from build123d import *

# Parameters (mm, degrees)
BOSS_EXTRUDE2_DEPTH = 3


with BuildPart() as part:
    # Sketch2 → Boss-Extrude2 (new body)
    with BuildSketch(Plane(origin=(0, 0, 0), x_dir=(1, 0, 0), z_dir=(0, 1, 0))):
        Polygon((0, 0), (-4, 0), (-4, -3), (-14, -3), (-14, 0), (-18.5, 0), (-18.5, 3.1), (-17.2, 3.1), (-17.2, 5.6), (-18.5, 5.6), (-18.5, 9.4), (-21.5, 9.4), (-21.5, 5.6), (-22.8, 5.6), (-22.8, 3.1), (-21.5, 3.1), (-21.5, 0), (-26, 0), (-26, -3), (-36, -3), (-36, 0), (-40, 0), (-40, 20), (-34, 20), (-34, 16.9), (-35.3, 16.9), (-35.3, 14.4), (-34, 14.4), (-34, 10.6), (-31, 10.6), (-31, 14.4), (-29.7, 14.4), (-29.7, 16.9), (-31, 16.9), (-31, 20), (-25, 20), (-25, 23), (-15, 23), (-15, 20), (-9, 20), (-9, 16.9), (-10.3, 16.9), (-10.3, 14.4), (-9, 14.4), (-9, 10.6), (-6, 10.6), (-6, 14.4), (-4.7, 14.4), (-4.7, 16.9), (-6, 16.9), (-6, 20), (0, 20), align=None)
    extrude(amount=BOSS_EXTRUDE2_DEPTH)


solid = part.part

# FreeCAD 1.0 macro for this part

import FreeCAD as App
import Part
import Sketcher
from FreeCAD import Vector
Q = App.Units.Quantity

doc = App.newDocument("Part")
body = doc.addObject("PartDesign::Body", "Body")

# Sketch on XZ plane
sketch1 = body.newObject("Sketcher::SketchObject", "Sketch")
sketch1.AttachmentSupport = (doc.getObject("XZ_Plane"), [""])
sketch1.MapMode = "FlatFace"
sketch1.addGeometry([
    Part.LineSegment(Vector(-4, 0, 0), Vector(0, 0, 0)),  # 0
    Part.LineSegment(Vector(0, 0, 0), Vector(0, -20, 0)),  # 1
    Part.LineSegment(Vector(0, -20, 0), Vector(-6, -20, 0)),  # 2
    Part.LineSegment(Vector(-6, -20, 0), Vector(-6, -16.9, 0)),  # 3
    Part.LineSegment(Vector(-6, -16.9, 0), Vector(-4.7, -16.9, 0)),  # 4
    Part.LineSegment(Vector(-4.7, -16.9, 0), Vector(-4.7, -14.4, 0)),  # 5
    Part.LineSegment(Vector(-4.7, -14.4, 0), Vector(-6, -14.4, 0)),  # 6
    Part.LineSegment(Vector(-6, -14.4, 0), Vector(-6, -10.6, 0)),  # 7
    Part.LineSegment(Vector(-6, -10.6, 0), Vector(-9, -10.6, 0)),  # 8
    Part.LineSegment(Vector(-9, -10.6, 0), Vector(-9, -14.4, 0)),  # 9
    Part.LineSegment(Vector(-9, -14.4, 0), Vector(-10.3, -14.4, 0)),  # 10
    Part.LineSegment(Vector(-10.3, -14.4, 0), Vector(-10.3, -16.9, 0)),  # 11
    Part.LineSegment(Vector(-10.3, -16.9, 0), Vector(-9, -16.9, 0)),  # 12
    Part.LineSegment(Vector(-9, -16.9, 0), Vector(-9, -20, 0)),  # 13
    Part.LineSegment(Vector(-9, -20, 0), Vector(-15, -20, 0)),  # 14
    Part.LineSegment(Vector(-15, -20, 0), Vector(-15, -23, 0)),  # 15
    Part.LineSegment(Vector(-15, -23, 0), Vector(-25, -23, 0)),  # 16
    Part.LineSegment(Vector(-25, -23, 0), Vector(-25, -20, 0)),  # 17
    Part.LineSegment(Vector(-25, -20, 0), Vector(-31, -20, 0)),  # 18
    Part.LineSegment(Vector(-31, -20, 0), Vector(-31, -16.9, 0)),  # 19
    Part.LineSegment(Vector(-31, -16.9, 0), Vector(-29.7, -16.9, 0)),  # 20
    Part.LineSegment(Vector(-29.7, -16.9, 0), Vector(-29.7, -14.4, 0)),  # 21
    Part.LineSegment(Vector(-29.7, -14.4, 0), Vector(-31, -14.4, 0)),  # 22
    Part.LineSegment(Vector(-31, -14.4, 0), Vector(-31, -10.6, 0)),  # 23
    Part.LineSegment(Vector(-31, -10.6, 0), Vector(-34, -10.6, 0)),  # 24
    Part.LineSegment(Vector(-34, -10.6, 0), Vector(-34, -14.4, 0)),  # 25
    Part.LineSegment(Vector(-34, -14.4, 0), Vector(-35.3, -14.4, 0)),  # 26
    Part.LineSegment(Vector(-35.3, -14.4, 0), Vector(-35.3, -16.9, 0)),  # 27
    Part.LineSegment(Vector(-35.3, -16.9, 0), Vector(-34, -16.9, 0)),  # 28
    Part.LineSegment(Vector(-34, -16.9, 0), Vector(-34, -20, 0)),  # 29
    Part.LineSegment(Vector(-34, -20, 0), Vector(-40, -20, 0)),  # 30
    Part.LineSegment(Vector(-40, -20, 0), Vector(-40, 0, 0)),  # 31
    Part.LineSegment(Vector(-40, 0, 0), Vector(-36, 0, 0)),  # 32
    Part.LineSegment(Vector(-36, 0, 0), Vector(-36, 3, 0)),  # 33
    Part.LineSegment(Vector(-36, 3, 0), Vector(-26, 3, 0)),  # 34
    Part.LineSegment(Vector(-26, 3, 0), Vector(-26, 0, 0)),  # 35
    Part.LineSegment(Vector(-26, 0, 0), Vector(-21.5, 0, 0)),  # 36
    Part.LineSegment(Vector(-21.5, 0, 0), Vector(-21.5, -3.1, 0)),  # 37
    Part.LineSegment(Vector(-21.5, -3.1, 0), Vector(-22.8, -3.1, 0)),  # 38
    Part.LineSegment(Vector(-22.8, -3.1, 0), Vector(-22.8, -5.6, 0)),  # 39
    Part.LineSegment(Vector(-22.8, -5.6, 0), Vector(-21.5, -5.6, 0)),  # 40
    Part.LineSegment(Vector(-21.5, -5.6, 0), Vector(-21.5, -9.4, 0)),  # 41
    Part.LineSegment(Vector(-21.5, -9.4, 0), Vector(-18.5, -9.4, 0)),  # 42
    Part.LineSegment(Vector(-18.5, -9.4, 0), Vector(-18.5, -5.6, 0)),  # 43
    Part.LineSegment(Vector(-18.5, -5.6, 0), Vector(-17.2, -5.6, 0)),  # 44
    Part.LineSegment(Vector(-17.2, -5.6, 0), Vector(-17.2, -3.1, 0)),  # 45
    Part.LineSegment(Vector(-17.2, -3.1, 0), Vector(-18.5, -3.1, 0)),  # 46
    Part.LineSegment(Vector(-18.5, -3.1, 0), Vector(-18.5, 0, 0)),  # 47
    Part.LineSegment(Vector(-18.5, 0, 0), Vector(-14, 0, 0)),  # 48
    Part.LineSegment(Vector(-14, 0, 0), Vector(-14, 3, 0)),  # 49
    Part.LineSegment(Vector(-14, 3, 0), Vector(-4, 3, 0)),  # 50
    Part.LineSegment(Vector(-4, 3, 0), Vector(-4, 0, 0)),  # 51
], False)
sketch1.addConstraint([
    Sketcher.Constraint("Coincident", 0, 2, 1, 1),
    Sketcher.Constraint("Coincident", 1, 2, 2, 1),
    Sketcher.Constraint("Coincident", 2, 2, 3, 1),
    Sketcher.Constraint("Coincident", 3, 2, 4, 1),
    Sketcher.Constraint("Coincident", 4, 2, 5, 1),
    Sketcher.Constraint("Coincident", 5, 2, 6, 1),
    Sketcher.Constraint("Coincident", 6, 2, 7, 1),
    Sketcher.Constraint("Coincident", 7, 2, 8, 1),
    Sketcher.Constraint("Coincident", 8, 2, 9, 1),
    Sketcher.Constraint("Coincident", 9, 2, 10, 1),
    Sketcher.Constraint("Coincident", 10, 2, 11, 1),
    Sketcher.Constraint("Coincident", 11, 2, 12, 1),
    Sketcher.Constraint("Coincident", 12, 2, 13, 1),
    Sketcher.Constraint("Coincident", 13, 2, 14, 1),
    Sketcher.Constraint("Coincident", 14, 2, 15, 1),
    Sketcher.Constraint("Coincident", 15, 2, 16, 1),
    Sketcher.Constraint("Coincident", 16, 2, 17, 1),
    Sketcher.Constraint("Coincident", 17, 2, 18, 1),
    Sketcher.Constraint("Coincident", 18, 2, 19, 1),
    Sketcher.Constraint("Coincident", 19, 2, 20, 1),
    Sketcher.Constraint("Coincident", 20, 2, 21, 1),
    Sketcher.Constraint("Coincident", 21, 2, 22, 1),
    Sketcher.Constraint("Coincident", 22, 2, 23, 1),
    Sketcher.Constraint("Coincident", 23, 2, 24, 1),
    Sketcher.Constraint("Coincident", 24, 2, 25, 1),
    Sketcher.Constraint("Coincident", 25, 2, 26, 1),
    Sketcher.Constraint("Coincident", 26, 2, 27, 1),
    Sketcher.Constraint("Coincident", 27, 2, 28, 1),
    Sketcher.Constraint("Coincident", 28, 2, 29, 1),
    Sketcher.Constraint("Coincident", 29, 2, 30, 1),
    Sketcher.Constraint("Coincident", 30, 2, 31, 1),
    Sketcher.Constraint("Coincident", 31, 2, 32, 1),
    Sketcher.Constraint("Coincident", 32, 2, 33, 1),
    Sketcher.Constraint("Coincident", 33, 2, 34, 1),
    Sketcher.Constraint("Coincident", 34, 2, 35, 1),
    Sketcher.Constraint("Coincident", 35, 2, 36, 1),
    Sketcher.Constraint("Coincident", 36, 2, 37, 1),
    Sketcher.Constraint("Coincident", 37, 2, 38, 1),
    Sketcher.Constraint("Coincident", 38, 2, 39, 1),
    Sketcher.Constraint("Coincident", 39, 2, 40, 1),
    Sketcher.Constraint("Coincident", 40, 2, 41, 1),
    Sketcher.Constraint("Coincident", 41, 2, 42, 1),
    Sketcher.Constraint("Coincident", 42, 2, 43, 1),
    Sketcher.Constraint("Coincident", 43, 2, 44, 1),
    Sketcher.Constraint("Coincident", 44, 2, 45, 1),
    Sketcher.Constraint("Coincident", 45, 2, 46, 1),
    Sketcher.Constraint("Coincident", 46, 2, 47, 1),
    Sketcher.Constraint("Coincident", 47, 2, 48, 1),
    Sketcher.Constraint("Coincident", 48, 2, 49, 1),
    Sketcher.Constraint("Coincident", 49, 2, 50, 1),
    Sketcher.Constraint("Coincident", 50, 2, 51, 1),
    Sketcher.Constraint("Coincident", 51, 2, 0, 1),
    Sketcher.Constraint("Horizontal", 0),
    Sketcher.Constraint("Vertical", 1),
    Sketcher.Constraint("Horizontal", 2),
    Sketcher.Constraint("Vertical", 3),
    Sketcher.Constraint("Horizontal", 4),
    Sketcher.Constraint("Vertical", 5),
    Sketcher.Constraint("Horizontal", 6),
    Sketcher.Constraint("Vertical", 7),
    Sketcher.Constraint("Horizontal", 8),
    Sketcher.Constraint("Vertical", 9),
    Sketcher.Constraint("Horizontal", 10),
    Sketcher.Constraint("Vertical", 11),
    Sketcher.Constraint("Horizontal", 12),
    Sketcher.Constraint("Vertical", 13),
    Sketcher.Constraint("Horizontal", 14),
    Sketcher.Constraint("Vertical", 15),
    Sketcher.Constraint("Horizontal", 16),
    Sketcher.Constraint("Vertical", 17),
    Sketcher.Constraint("Horizontal", 18),
    Sketcher.Constraint("Vertical", 19),
    Sketcher.Constraint("Horizontal", 20),
    Sketcher.Constraint("Vertical", 21),
    Sketcher.Constraint("Horizontal", 22),
    Sketcher.Constraint("Vertical", 23),
    Sketcher.Constraint("Horizontal", 24),
    Sketcher.Constraint("Vertical", 25),
    Sketcher.Constraint("Horizontal", 26),
    Sketcher.Constraint("Vertical", 27),
    Sketcher.Constraint("Horizontal", 28),
    Sketcher.Constraint("Vertical", 29),
    Sketcher.Constraint("Horizontal", 30),
    Sketcher.Constraint("Vertical", 31),
    Sketcher.Constraint("Horizontal", 32),
    Sketcher.Constraint("Vertical", 33),
    Sketcher.Constraint("Horizontal", 34),
    Sketcher.Constraint("Vertical", 35),
    Sketcher.Constraint("Horizontal", 36),
    Sketcher.Constraint("Vertical", 37),
    Sketcher.Constraint("Horizontal", 38),
    Sketcher.Constraint("Vertical", 39),
    Sketcher.Constraint("Horizontal", 40),
    Sketcher.Constraint("Vertical", 41),
    Sketcher.Constraint("Horizontal", 42),
    Sketcher.Constraint("Vertical", 43),
    Sketcher.Constraint("Horizontal", 44),
    Sketcher.Constraint("Vertical", 45),
    Sketcher.Constraint("Horizontal", 46),
    Sketcher.Constraint("Vertical", 47),
    Sketcher.Constraint("Horizontal", 48),
    Sketcher.Constraint("Vertical", 49),
    Sketcher.Constraint("Horizontal", 50),
    Sketcher.Constraint("Vertical", 51),
    Sketcher.Constraint("Coincident", 0, 2, -1, 1),
    Sketcher.Constraint("PointOnObject", 31, 2, -1),
    Sketcher.Constraint("PointOnObject", 35, 2, -1),
    Sketcher.Constraint("PointOnObject", 47, 2, -1),
    Sketcher.Constraint("Horizontal", 6, 2, 9, 2),
    Sketcher.Constraint("Horizontal", 4, 2, 11, 2),
    Sketcher.Constraint("Horizontal", 2, 2, 13, 2),
    Sketcher.Constraint("Horizontal", 14, 2, 17, 2),
    Sketcher.Constraint("Horizontal", 12, 2, 19, 2),
    Sketcher.Constraint("Horizontal", 10, 2, 21, 2),
    Sketcher.Constraint("Horizontal", 8, 2, 23, 2),
    Sketcher.Constraint("Horizontal", 22, 2, 25, 2),
    Sketcher.Constraint("Horizontal", 20, 2, 27, 2),
    Sketcher.Constraint("Horizontal", 18, 2, 29, 2),
    Sketcher.Constraint("Horizontal", 40, 2, 43, 2),
    Sketcher.Constraint("Horizontal", 38, 2, 45, 2),
    Sketcher.Constraint("Horizontal", 34, 2, 49, 2),
    Sketcher.Constraint("Vertical", 3, 2, 6, 2),
    Sketcher.Constraint("Vertical", 9, 2, 12, 2),
    Sketcher.Constraint("Vertical", 19, 2, 22, 2),
    Sketcher.Constraint("Vertical", 25, 2, 28, 2),
    Sketcher.Constraint("Vertical", 37, 2, 40, 2),
    Sketcher.Constraint("Vertical", 43, 2, 46, 2),
    Sketcher.Constraint("Equal", 6, 10),
    Sketcher.Constraint("Equal", 2, 14),
    Sketcher.Constraint("Equal", 14, 18),
    Sketcher.Constraint("Equal", 12, 20),
    Sketcher.Constraint("Equal", 8, 24),
    Sketcher.Constraint("Equal", 22, 26),
    Sketcher.Constraint("Equal", 18, 30),
    Sketcher.Constraint("Equal", 0, 32),
    Sketcher.Constraint("Equal", 16, 34),
    Sketcher.Constraint("Equal", 28, 38),
    Sketcher.Constraint("Equal", 24, 42),
    Sketcher.Constraint("Equal", 40, 44),
    Sketcher.Constraint("Equal", 36, 48),
    Sketcher.Constraint("Equal", 34, 50),
    Sketcher.Constraint("Equal", 42, 15),
    Sketcher.Constraint("Equal", 17, 33),
    Sketcher.Constraint("Equal", 29, 37),
    Sketcher.Constraint("Equal", 27, 39),
    Sketcher.Constraint("Equal", 25, 41),
    Sketcher.Constraint("DistanceX", 0, 1, 0, 2, Q("4 mm")),
    Sketcher.Constraint("DistanceX", 2, 2, 2, 1, Q("6 mm")),
    Sketcher.Constraint("DistanceX", 8, 2, 8, 1, Q("3 mm")),
    Sketcher.Constraint("DistanceX", 16, 2, 16, 1, Q("10 mm")),
    Sketcher.Constraint("DistanceY", 1, 2, 1, 1, Q("20 mm")),
    Sketcher.Constraint("DistanceX", 4, 1, 4, 2, Q("1.3 mm")),
    Sketcher.Constraint("DistanceY", 3, 1, 3, 2, Q("3.1 mm")),
    Sketcher.Constraint("DistanceY", 5, 1, 5, 2, Q("2.5 mm")),
    Sketcher.Constraint("DistanceY", 7, 1, 7, 2, Q("3.8 mm")),
])
pad1 = body.newObject("PartDesign::Pad", "Pad")
pad1.Profile = sketch1
pad1.Length = 3
pad1.Reversed = True

doc.recompute()
